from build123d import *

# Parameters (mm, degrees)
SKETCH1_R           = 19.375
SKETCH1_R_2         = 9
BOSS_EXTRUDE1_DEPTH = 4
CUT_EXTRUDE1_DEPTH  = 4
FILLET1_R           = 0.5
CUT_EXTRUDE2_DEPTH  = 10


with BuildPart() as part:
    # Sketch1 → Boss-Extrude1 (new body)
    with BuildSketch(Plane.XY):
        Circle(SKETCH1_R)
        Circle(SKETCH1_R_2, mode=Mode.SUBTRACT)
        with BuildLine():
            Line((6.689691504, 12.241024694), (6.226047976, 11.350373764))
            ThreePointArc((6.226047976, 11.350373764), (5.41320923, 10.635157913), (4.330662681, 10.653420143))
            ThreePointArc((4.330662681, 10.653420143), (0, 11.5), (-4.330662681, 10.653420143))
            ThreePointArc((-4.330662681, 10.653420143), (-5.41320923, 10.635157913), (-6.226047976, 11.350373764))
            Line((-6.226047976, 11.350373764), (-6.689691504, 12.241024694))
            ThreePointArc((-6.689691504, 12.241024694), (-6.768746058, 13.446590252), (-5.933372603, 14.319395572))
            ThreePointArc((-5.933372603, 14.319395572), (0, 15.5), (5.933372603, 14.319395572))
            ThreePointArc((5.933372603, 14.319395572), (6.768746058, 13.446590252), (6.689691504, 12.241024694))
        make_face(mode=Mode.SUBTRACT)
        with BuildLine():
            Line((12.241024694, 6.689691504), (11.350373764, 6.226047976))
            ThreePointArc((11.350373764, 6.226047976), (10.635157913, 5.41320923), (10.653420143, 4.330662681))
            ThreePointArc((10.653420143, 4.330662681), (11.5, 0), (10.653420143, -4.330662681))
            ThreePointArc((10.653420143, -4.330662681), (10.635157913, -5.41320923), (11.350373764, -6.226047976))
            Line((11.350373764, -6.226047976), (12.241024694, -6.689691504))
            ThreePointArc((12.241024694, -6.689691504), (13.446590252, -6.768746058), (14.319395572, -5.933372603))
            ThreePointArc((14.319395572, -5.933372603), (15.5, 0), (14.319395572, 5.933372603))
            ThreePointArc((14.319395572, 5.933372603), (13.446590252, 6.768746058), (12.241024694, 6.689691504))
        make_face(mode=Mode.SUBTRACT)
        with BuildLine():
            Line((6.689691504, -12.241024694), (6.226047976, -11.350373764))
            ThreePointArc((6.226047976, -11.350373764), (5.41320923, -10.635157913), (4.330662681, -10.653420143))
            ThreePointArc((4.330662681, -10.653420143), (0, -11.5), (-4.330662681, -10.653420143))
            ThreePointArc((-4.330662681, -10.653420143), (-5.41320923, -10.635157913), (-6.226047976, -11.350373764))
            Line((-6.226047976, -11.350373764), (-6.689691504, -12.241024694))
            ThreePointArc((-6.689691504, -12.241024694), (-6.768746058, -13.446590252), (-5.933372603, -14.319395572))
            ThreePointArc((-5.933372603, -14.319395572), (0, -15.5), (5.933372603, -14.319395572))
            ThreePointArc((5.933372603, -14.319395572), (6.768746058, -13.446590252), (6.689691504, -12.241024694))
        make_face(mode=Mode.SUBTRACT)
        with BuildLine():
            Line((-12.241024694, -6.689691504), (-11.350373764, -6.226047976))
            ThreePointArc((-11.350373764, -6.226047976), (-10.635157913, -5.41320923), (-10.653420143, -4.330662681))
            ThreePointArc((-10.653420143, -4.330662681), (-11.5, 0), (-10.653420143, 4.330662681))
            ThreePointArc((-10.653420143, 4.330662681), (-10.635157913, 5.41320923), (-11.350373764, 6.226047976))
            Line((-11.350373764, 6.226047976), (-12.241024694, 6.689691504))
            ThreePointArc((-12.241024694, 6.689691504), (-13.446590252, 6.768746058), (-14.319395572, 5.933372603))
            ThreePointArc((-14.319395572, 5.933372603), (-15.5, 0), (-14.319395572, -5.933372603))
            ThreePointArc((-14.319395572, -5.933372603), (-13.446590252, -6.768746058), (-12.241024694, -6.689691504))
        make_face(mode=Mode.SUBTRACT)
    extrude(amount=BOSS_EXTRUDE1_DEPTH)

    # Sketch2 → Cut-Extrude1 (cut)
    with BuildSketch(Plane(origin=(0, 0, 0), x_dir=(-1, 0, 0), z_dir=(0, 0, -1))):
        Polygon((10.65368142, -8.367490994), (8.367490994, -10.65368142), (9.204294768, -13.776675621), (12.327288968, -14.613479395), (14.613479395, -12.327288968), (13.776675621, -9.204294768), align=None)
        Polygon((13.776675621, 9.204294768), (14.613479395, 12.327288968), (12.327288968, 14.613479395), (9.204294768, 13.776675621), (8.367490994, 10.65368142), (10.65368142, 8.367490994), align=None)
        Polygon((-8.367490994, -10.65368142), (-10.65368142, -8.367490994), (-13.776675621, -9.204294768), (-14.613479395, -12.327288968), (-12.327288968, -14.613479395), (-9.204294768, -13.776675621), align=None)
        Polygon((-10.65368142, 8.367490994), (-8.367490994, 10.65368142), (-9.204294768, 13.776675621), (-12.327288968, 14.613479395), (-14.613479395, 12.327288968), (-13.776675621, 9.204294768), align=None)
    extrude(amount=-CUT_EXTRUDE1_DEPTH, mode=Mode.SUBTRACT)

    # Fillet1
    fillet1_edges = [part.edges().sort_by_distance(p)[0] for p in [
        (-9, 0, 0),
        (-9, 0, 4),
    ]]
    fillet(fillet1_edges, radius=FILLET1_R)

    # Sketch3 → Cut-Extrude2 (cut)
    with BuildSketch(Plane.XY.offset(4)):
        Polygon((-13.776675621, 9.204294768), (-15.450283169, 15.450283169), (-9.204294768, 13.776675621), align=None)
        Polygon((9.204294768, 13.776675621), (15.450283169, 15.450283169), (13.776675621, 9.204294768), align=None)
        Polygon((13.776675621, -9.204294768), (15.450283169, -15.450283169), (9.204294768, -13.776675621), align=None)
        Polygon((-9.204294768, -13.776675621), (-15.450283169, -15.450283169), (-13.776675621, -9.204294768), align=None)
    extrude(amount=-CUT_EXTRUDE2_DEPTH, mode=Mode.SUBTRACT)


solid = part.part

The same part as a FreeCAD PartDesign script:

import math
import FreeCAD as App
import Part
import Sketcher
Q = App.Units.Quantity


def edges_at(feature, points):
    """Names of the edges that pass closest to the given points."""
    edges = feature.Shape.Edges
    near = lambda p: min(range(len(edges)), key=lambda i: edges[i].distToShape(Part.Vertex(*p))[0])
    return sorted({f"Edge{near(p) + 1}" for p in points})

doc = App.newDocument("Part")
body = doc.addObject("PartDesign::Body", "Body")

sketch1 = doc.addObject("Sketcher::SketchObject", "Sketch")
body.addObject(sketch1)
sketch1.AttachmentSupport = (doc.XY_Plane, [""])
sketch1.MapMode = "FlatFace"
sketch1.addGeometry([
    Part.Circle(App.Vector(0, 0, 0), App.Vector(0, 0, 1), 19.4),
    Part.LineSegment(App.Vector(6.2, -11.4, 0), App.Vector(6.7, -12.2, 0)),
    Part.ArcOfCircle(Part.Circle(App.Vector(5.4, -12.9, 0), App.Vector(0, 0, 1), 1.5), math.radians(-67), math.radians(28)),
    Part.ArcOfCircle(Part.Circle(App.Vector(0, 0, 0), App.Vector(0, 0, 1), 15.5), math.radians(-113), math.radians(-67)),
    Part.ArcOfCircle(Part.Circle(App.Vector(-5.4, -12.9, 0), App.Vector(0, 0, 1), 1.5), math.radians(152), math.radians(247)),
    Part.LineSegment(App.Vector(-6.7, -12.2, 0), App.Vector(-6.2, -11.4, 0)),
    Part.ArcOfCircle(Part.Circle(App.Vector(-4.9, -12, 0), App.Vector(0, 0, 1), 1.5), math.radians(68), math.radians(153)),
    Part.ArcOfCircle(Part.Circle(App.Vector(0, 0, 0), App.Vector(0, 0, 1), 11.5), math.radians(-112), math.radians(-68)),
    Part.ArcOfCircle(Part.Circle(App.Vector(4.9, -12, 0), App.Vector(0, 0, 1), 1.5), math.radians(27), math.radians(112)),
    Part.LineSegment(App.Vector(-11.4, -6.2, 0), App.Vector(-12.2, -6.7, 0)),
    Part.ArcOfCircle(Part.Circle(App.Vector(-12.9, -5.4, 0), App.Vector(0, 0, 1), 1.5), math.radians(-157), math.radians(-62)),
    Part.ArcOfCircle(Part.Circle(App.Vector(0, 0, 0), App.Vector(0, 0, 1), 15.5), math.radians(157), math.radians(203)),
    Part.ArcOfCircle(Part.Circle(App.Vector(-12.9, 5.4, 0), App.Vector(0, 0, 1), 1.5), math.radians(62), math.radians(157)),
    Part.LineSegment(App.Vector(-12.2, 6.7, 0), App.Vector(-11.4, 6.2, 0)),
    Part.ArcOfCircle(Part.Circle(App.Vector(-12, 4.9, 0), App.Vector(0, 0, 1), 1.5), math.radians(-22), math.radians(63)),
    Part.ArcOfCircle(Part.Circle(App.Vector(0, 0, 0), App.Vector(0, 0, 1), 11.5), math.radians(158), math.radians(202)),
    Part.ArcOfCircle(Part.Circle(App.Vector(-12, -4.9, 0), App.Vector(0, 0, 1), 1.5), math.radians(-63), math.radians(22)),
    Part.Circle(App.Vector(0, 0, 0), App.Vector(0, 0, 1), 9),
    Part.LineSegment(App.Vector(11.4, 6.2, 0), App.Vector(12.2, 6.7, 0)),
    Part.ArcOfCircle(Part.Circle(App.Vector(12.9, 5.4, 0), App.Vector(0, 0, 1), 1.5), math.radians(23), math.radians(118)),
    Part.ArcOfCircle(Part.Circle(App.Vector(0, 0, 0), App.Vector(0, 0, 1), 15.5), math.radians(-23), math.radians(23)),
    Part.ArcOfCircle(Part.Circle(App.Vector(12.9, -5.4, 0), App.Vector(0, 0, 1), 1.5), math.radians(-118), math.radians(-23)),
    Part.LineSegment(App.Vector(12.2, -6.7, 0), App.Vector(11.4, -6.2, 0)),
    Part.ArcOfCircle(Part.Circle(App.Vector(12, -4.9, 0), App.Vector(0, 0, 1), 1.5), math.radians(158), math.radians(243)),
    Part.ArcOfCircle(Part.Circle(App.Vector(0, 0, 0), App.Vector(0, 0, 1), 11.5), math.radians(-22), math.radians(22)),
    Part.ArcOfCircle(Part.Circle(App.Vector(12, 4.9, 0), App.Vector(0, 0, 1), 1.5), math.radians(117), math.radians(202)),
    Part.ArcOfCircle(Part.Circle(App.Vector(5.4, 12.9, 0), App.Vector(0, 0, 1), 1.5), math.radians(-28), math.radians(67)),
    Part.LineSegment(App.Vector(6.7, 12.2, 0), App.Vector(6.2, 11.4, 0)),
    Part.ArcOfCircle(Part.Circle(App.Vector(4.9, 12, 0), App.Vector(0, 0, 1), 1.5), math.radians(-112), math.radians(-27)),
    Part.ArcOfCircle(Part.Circle(App.Vector(0, 0, 0), App.Vector(0, 0, 1), 11.5), math.radians(68), math.radians(112)),
    Part.ArcOfCircle(Part.Circle(App.Vector(-4.9, 12, 0), App.Vector(0, 0, 1), 1.5), math.radians(-153), math.radians(-68)),
    Part.LineSegment(App.Vector(-6.2, 11.4, 0), App.Vector(-6.7, 12.2, 0)),
    Part.ArcOfCircle(Part.Circle(App.Vector(-5.4, 12.9, 0), App.Vector(0, 0, 1), 1.5), math.radians(113), math.radians(208)),
    Part.ArcOfCircle(Part.Circle(App.Vector(0, 0, 0), App.Vector(0, 0, 1), 15.5), math.radians(67), math.radians(113)),
], False)
sketch1.addConstraint([
    Sketcher.Constraint("Tangent", 1, 2, 2, 2),
    Sketcher.Constraint("Tangent", 2, 1, 3, 2),
    Sketcher.Constraint("Tangent", 3, 1, 4, 2),
    Sketcher.Constraint("Tangent", 4, 1, 5, 1),
    Sketcher.Constraint("Tangent", 5, 2, 6, 2),
    Sketcher.Constraint("Tangent", 6, 1, 7, 1),
    Sketcher.Constraint("Tangent", 7, 2, 8, 2),
    Sketcher.Constraint("Tangent", 8, 1, 1, 1),
    Sketcher.Constraint("Tangent", 9, 2, 10, 2),
    Sketcher.Constraint("Tangent", 10, 1, 11, 2),
    Sketcher.Constraint("Tangent", 11, 1, 12, 2),
    Sketcher.Constraint("Tangent", 12, 1, 13, 1),
    Sketcher.Constraint("Tangent", 13, 2, 14, 2),
    Sketcher.Constraint("Tangent", 14, 1, 15, 1),
    Sketcher.Constraint("Tangent", 15, 2, 16, 2),
    Sketcher.Constraint("Tangent", 16, 1, 9, 1),
    Sketcher.Constraint("Tangent", 18, 2, 19, 2),
    Sketcher.Constraint("Tangent", 19, 1, 20, 2),
    Sketcher.Constraint("Tangent", 20, 1, 21, 2),
    Sketcher.Constraint("Tangent", 21, 1, 22, 1),
    Sketcher.Constraint("Tangent", 22, 2, 23, 2),
    Sketcher.Constraint("Tangent", 23, 1, 24, 1),
    Sketcher.Constraint("Tangent", 24, 2, 25, 2),
    Sketcher.Constraint("Tangent", 25, 1, 18, 1),
    Sketcher.Constraint("Tangent", 26, 1, 27, 1),
    Sketcher.Constraint("Tangent", 27, 2, 28, 2),
    Sketcher.Constraint("Tangent", 28, 1, 29, 1),
    Sketcher.Constraint("Tangent", 29, 2, 30, 2),
    Sketcher.Constraint("Tangent", 30, 1, 31, 1),
    Sketcher.Constraint("Tangent", 31, 2, 32, 2),
    Sketcher.Constraint("Tangent", 32, 1, 33, 2),
    Sketcher.Constraint("Tangent", 33, 1, 26, 2),
    Sketcher.Constraint("Coincident", 0, 3, -1, 1),
    Sketcher.Constraint("Coincident", 3, 3, -1, 1),
    Sketcher.Constraint("Coincident", 7, 3, -1, 1),
    Sketcher.Constraint("Coincident", 11, 3, -1, 1),
    Sketcher.Constraint("Coincident", 15, 3, -1, 1),
    Sketcher.Constraint("Coincident", 17, 3, -1, 1),
    Sketcher.Constraint("Coincident", 20, 3, -1, 1),
    Sketcher.Constraint("Coincident", 24, 3, -1, 1),
    Sketcher.Constraint("Coincident", 29, 3, -1, 1),
    Sketcher.Constraint("Coincident", 33, 3, -1, 1),
    Sketcher.Constraint("Equal", 2, 4),
    Sketcher.Constraint("Equal", 4, 6),
    Sketcher.Constraint("Equal", 6, 8),
    Sketcher.Constraint("Equal", 8, 10),
    Sketcher.Constraint("Equal", 3, 11),
    Sketcher.Constraint("Equal", 10, 12),
    Sketcher.Constraint("Equal", 12, 14),
    Sketcher.Constraint("Equal", 7, 15),
    Sketcher.Constraint("Equal", 14, 16),
    Sketcher.Constraint("Equal", 16, 19),
    Sketcher.Constraint("Equal", 11, 20),
    Sketcher.Constraint("Equal", 19, 21),
    Sketcher.Constraint("Equal", 21, 23),
    Sketcher.Constraint("Equal", 15, 24),
    Sketcher.Constraint("Equal", 23, 25),
    Sketcher.Constraint("Equal", 25, 26),
    Sketcher.Constraint("Equal", 26, 28),
    Sketcher.Constraint("Equal", 24, 29),
    Sketcher.Constraint("Equal", 28, 30),
    Sketcher.Constraint("Equal", 30, 32),
    Sketcher.Constraint("Equal", 20, 33),
    Sketcher.Constraint("Symmetric", 9, 2, 18, 2, -1, 1),
    Sketcher.Constraint("Symmetric", 12, 1, 21, 1, -1, 1),
    Sketcher.Constraint("Symmetric", 4, 1, 26, 1, -1, 1),
    Sketcher.Constraint("Symmetric", 8, 1, 30, 1, -1, 1),
    Sketcher.Constraint("Symmetric", 1, 2, 4, 1, -2),
    Sketcher.Constraint("Symmetric", 12, 1, 18, 2, -2),
    Sketcher.Constraint("Perpendicular", 1, 9),
    Sketcher.Constraint("Diameter", 17, 18.0),
    Sketcher.Constraint("Radius", 2, 1.5),
    Sketcher.Constraint("Radius", 3, 15.5),
    Sketcher.Constraint("Radius", 7, 11.5),
    Sketcher.Constraint("Diameter", 0, 38.75),
    Sketcher.Constraint("Angle", 1, Q("-62.5 deg")),
    Sketcher.Constraint("DistanceY", 5, 2, 10, 1, 5.417001),
    Sketcher.Constraint("DistanceY", 2, 1, 8, 3, 2.276399),
])
pad1 = doc.addObject("PartDesign::Pad", "Pad")
body.addObject(pad1)
pad1.Profile = sketch1
pad1.Length = 4

sketch2 = doc.addObject("Sketcher::SketchObject", "Sketch001")
body.addObject(sketch2)
sketch2.AttachmentSupport = (doc.XY_Plane, [""])
sketch2.MapMode = "FlatFace"
sketch2.addGeometry([
    Part.LineSegment(App.Vector(-10.7, -8.4, 0), App.Vector(-8.4, -10.7, 0)),
    Part.LineSegment(App.Vector(-8.4, -10.7, 0), App.Vector(-9.2, -13.8, 0)),
    Part.LineSegment(App.Vector(-9.2, -13.8, 0), App.Vector(-12.3, -14.6, 0)),
    Part.LineSegment(App.Vector(-12.3, -14.6, 0), App.Vector(-14.6, -12.3, 0)),
    Part.LineSegment(App.Vector(-14.6, -12.3, 0), App.Vector(-13.8, -9.2, 0)),
    Part.LineSegment(App.Vector(-13.8, -9.2, 0), App.Vector(-10.7, -8.4, 0)),
    Part.LineSegment(App.Vector(-13.8, 9.2, 0), App.Vector(-14.6, 12.3, 0)),
    Part.LineSegment(App.Vector(-14.6, 12.3, 0), App.Vector(-12.3, 14.6, 0)),
    Part.LineSegment(App.Vector(-12.3, 14.6, 0), App.Vector(-9.2, 13.8, 0)),
    Part.LineSegment(App.Vector(-9.2, 13.8, 0), App.Vector(-8.4, 10.7, 0)),
    Part.LineSegment(App.Vector(-8.4, 10.7, 0), App.Vector(-10.7, 8.4, 0)),
    Part.LineSegment(App.Vector(-10.7, 8.4, 0), App.Vector(-13.8, 9.2, 0)),
    Part.LineSegment(App.Vector(8.4, -10.7, 0), App.Vector(10.7, -8.4, 0)),
    Part.LineSegment(App.Vector(10.7, -8.4, 0), App.Vector(13.8, -9.2, 0)),
    Part.LineSegment(App.Vector(13.8, -9.2, 0), App.Vector(14.6, -12.3, 0)),
    Part.LineSegment(App.Vector(14.6, -12.3, 0), App.Vector(12.3, -14.6, 0)),
    Part.LineSegment(App.Vector(12.3, -14.6, 0), App.Vector(9.2, -13.8, 0)),
    Part.LineSegment(App.Vector(9.2, -13.8, 0), App.Vector(8.4, -10.7, 0)),
    Part.LineSegment(App.Vector(10.7, 8.4, 0), App.Vector(8.4, 10.7, 0)),
    Part.LineSegment(App.Vector(8.4, 10.7, 0), App.Vector(9.2, 13.8, 0)),
    Part.LineSegment(App.Vector(9.2, 13.8, 0), App.Vector(12.3, 14.6, 0)),
    Part.LineSegment(App.Vector(12.3, 14.6, 0), App.Vector(14.6, 12.3, 0)),
    Part.LineSegment(App.Vector(14.6, 12.3, 0), App.Vector(13.8, 9.2, 0)),
    Part.LineSegment(App.Vector(13.8, 9.2, 0), App.Vector(10.7, 8.4, 0)),
], False)
sketch2.addConstraint([
    Sketcher.Constraint("Coincident", 0, 2, 1, 1),
    Sketcher.Constraint("Coincident", 1, 2, 2, 1),
    Sketcher.Constraint("Coincident", 2, 2, 3, 1),
    Sketcher.Constraint("Coincident", 3, 2, 4, 1),
    Sketcher.Constraint("Coincident", 4, 2, 5, 1),
    Sketcher.Constraint("Coincident", 5, 2, 0, 1),
    Sketcher.Constraint("Coincident", 6, 2, 7, 1),
    Sketcher.Constraint("Coincident", 7, 2, 8, 1),
    Sketcher.Constraint("Coincident", 8, 2, 9, 1),
    Sketcher.Constraint("Coincident", 9, 2, 10, 1),
    Sketcher.Constraint("Coincident", 10, 2, 11, 1),
    Sketcher.Constraint("Coincident", 11, 2, 6, 1),
    Sketcher.Constraint("Coincident", 12, 2, 13, 1),
    Sketcher.Constraint("Coincident", 13, 2, 14, 1),
    Sketcher.Constraint("Coincident", 14, 2, 15, 1),
    Sketcher.Constraint("Coincident", 15, 2, 16, 1),
    Sketcher.Constraint("Coincident", 16, 2, 17, 1),
    Sketcher.Constraint("Coincident", 17, 2, 12, 1),
    Sketcher.Constraint("Coincident", 18, 2, 19, 1),
    Sketcher.Constraint("Coincident", 19, 2, 20, 1),
    Sketcher.Constraint("Coincident", 20, 2, 21, 1),
    Sketcher.Constraint("Coincident", 21, 2, 22, 1),
    Sketcher.Constraint("Coincident", 22, 2, 23, 1),
    Sketcher.Constraint("Coincident", 23, 2, 18, 1),
    Sketcher.Constraint("Symmetric", 10, 2, 12, 2, -1, 1),
    Sketcher.Constraint("Symmetric", 11, 2, 13, 2, -1, 1),
    Sketcher.Constraint("Symmetric", 6, 2, 14, 2, -1, 1),
    Sketcher.Constraint("Symmetric", 7, 2, 15, 2, -1, 1),
    Sketcher.Constraint("Symmetric", 8, 2, 16, 2, -1, 1),
    Sketcher.Constraint("Symmetric", 9, 2, 17, 2, -1, 1),
    Sketcher.Constraint("Symmetric", 0, 2, 18, 2, -1, 1),
    Sketcher.Constraint("Symmetric", 1, 2, 19, 2, -1, 1),
    Sketcher.Constraint("Symmetric", 2, 2, 20, 2, -1, 1),
    Sketcher.Constraint("Symmetric", 3, 2, 21, 2, -1, 1),
    Sketcher.Constraint("Symmetric", 4, 2, 22, 2, -1, 1),
    Sketcher.Constraint("Symmetric", 5, 2, 23, 2, -1, 1),
    Sketcher.Constraint("Symmetric", 5, 2, 12, 2, -2),
    Sketcher.Constraint("Symmetric", 4, 2, 13, 2, -2),
    Sketcher.Constraint("Symmetric", 3, 2, 14, 2, -2),
    Sketcher.Constraint("Symmetric", 2, 2, 15, 2, -2),
    Sketcher.Constraint("Symmetric", 1, 2, 16, 2, -2),
    Sketcher.Constraint("Symmetric", 0, 2, 17, 2, -2),
    Sketcher.Constraint("Parallel", 0, 3),
    Sketcher.Constraint("Parallel", 1, 4),
    Sketcher.Constraint("Parallel", 2, 5),
    Sketcher.Constraint("Perpendicular", 5, 6),
    Sketcher.Constraint("Perpendicular", 3, 7),
    Sketcher.Constraint("Equal", 0, 1),
    Sketcher.Constraint("Equal", 1, 2),
    Sketcher.Constraint("Equal", 2, 3),
    Sketcher.Constraint("Angle", 1, Q("-105 deg")),
    Sketcher.Constraint("Distance", 0, 3.233162),
    Sketcher.Constraint("DistanceX", 0, 2, -1, 1, 8.367491),
    Sketcher.Constraint("DistanceY", 0, 2, -1, 1, 10.653681),
])
pocket1 = doc.addObject("PartDesign::Pocket", "Pocket")
body.addObject(pocket1)
pocket1.Profile = sketch2
pocket1.Length = 4
pocket1.Reversed = True
doc.recompute()

fillet = doc.addObject("PartDesign::Fillet", "Fillet")
body.addObject(fillet)
fillet.Base = (pocket1, edges_at(pocket1, [(-9, 0, 0), (-9, 0, 4)]))
fillet.Radius = 0.5

sketch3 = doc.addObject("Sketcher::SketchObject", "Sketch002")
body.addObject(sketch3)
sketch3.AttachmentSupport = (doc.XY_Plane, [""])
sketch3.MapMode = "FlatFace"
sketch3.AttachmentOffset = App.Placement(App.Vector(0, 0, 4), App.Rotation())
sketch3.addGeometry([
    Part.LineSegment(App.Vector(-15, 15, 0), App.Vector(-14, 9, 0)),
    Part.LineSegment(App.Vector(-14, 9, 0), App.Vector(-9, 14, 0)),
    Part.LineSegment(App.Vector(-9, 14, 0), App.Vector(-15, 15, 0)),
    Part.LineSegment(App.Vector(15, 15, 0), App.Vector(9, 14, 0)),
    Part.LineSegment(App.Vector(9, 14, 0), App.Vector(14, 9, 0)),
    Part.LineSegment(App.Vector(14, 9, 0), App.Vector(15, 15, 0)),
    Part.LineSegment(App.Vector(15, -15, 0), App.Vector(14, -9, 0)),
    Part.LineSegment(App.Vector(14, -9, 0), App.Vector(9, -14, 0)),
    Part.LineSegment(App.Vector(9, -14, 0), App.Vector(15, -15, 0)),
    Part.LineSegment(App.Vector(-15, -15, 0), App.Vector(-9, -14, 0)),
    Part.LineSegment(App.Vector(-9, -14, 0), App.Vector(-14, -9, 0)),
    Part.LineSegment(App.Vector(-14, -9, 0), App.Vector(-15, -15, 0)),
], False)
sketch3.addConstraint([
    Sketcher.Constraint("Coincident", 0, 2, 1, 1),
    Sketcher.Constraint("Coincident", 1, 2, 2, 1),
    Sketcher.Constraint("Coincident", 2, 2, 0, 1),
    Sketcher.Constraint("Coincident", 3, 2, 4, 1),
    Sketcher.Constraint("Coincident", 4, 2, 5, 1),
    Sketcher.Constraint("Coincident", 5, 2, 3, 1),
    Sketcher.Constraint("Coincident", 6, 2, 7, 1),
    Sketcher.Constraint("Coincident", 7, 2, 8, 1),
    Sketcher.Constraint("Coincident", 8, 2, 6, 1),
    Sketcher.Constraint("Coincident", 9, 2, 10, 1),
    Sketcher.Constraint("Coincident", 10, 2, 11, 1),
    Sketcher.Constraint("Coincident", 11, 2, 9, 1),
    Sketcher.Constraint("Symmetric", 0, 2, 6, 2, -1, 1),
    Sketcher.Constraint("Symmetric", 1, 2, 7, 2, -1, 1),
    Sketcher.Constraint("Symmetric", 2, 2, 8, 2, -1, 1),
    Sketcher.Constraint("Symmetric", 3, 2, 9, 2, -1, 1),
    Sketcher.Constraint("Symmetric", 4, 2, 10, 2, -1, 1),
    Sketcher.Constraint("Symmetric", 5, 2, 11, 2, -1, 1),
    Sketcher.Constraint("Symmetric", 1, 2, 3, 2, -2),
    Sketcher.Constraint("Symmetric", 0, 2, 4, 2, -2),
    Sketcher.Constraint("Symmetric", 2, 2, 5, 2, -2),
    Sketcher.Constraint("Perpendicular", 0, 3),
    Sketcher.Constraint("Perpendicular", 1, 4),
    Sketcher.Constraint("Equal", 0, 1),
    Sketcher.Constraint("DistanceX", 0, 2, 1, 2, 4.572381),
    Sketcher.Constraint("DistanceX", 1, 2, 3, 2, 18.40859),
    Sketcher.Constraint("DistanceY", 6, 2, 4, 2, 18.40859),
])
pocket2 = doc.addObject("PartDesign::Pocket", "Pocket001")
body.addObject(pocket2)
pocket2.Profile = sketch3
pocket2.Length = 10

doc.recompute()
